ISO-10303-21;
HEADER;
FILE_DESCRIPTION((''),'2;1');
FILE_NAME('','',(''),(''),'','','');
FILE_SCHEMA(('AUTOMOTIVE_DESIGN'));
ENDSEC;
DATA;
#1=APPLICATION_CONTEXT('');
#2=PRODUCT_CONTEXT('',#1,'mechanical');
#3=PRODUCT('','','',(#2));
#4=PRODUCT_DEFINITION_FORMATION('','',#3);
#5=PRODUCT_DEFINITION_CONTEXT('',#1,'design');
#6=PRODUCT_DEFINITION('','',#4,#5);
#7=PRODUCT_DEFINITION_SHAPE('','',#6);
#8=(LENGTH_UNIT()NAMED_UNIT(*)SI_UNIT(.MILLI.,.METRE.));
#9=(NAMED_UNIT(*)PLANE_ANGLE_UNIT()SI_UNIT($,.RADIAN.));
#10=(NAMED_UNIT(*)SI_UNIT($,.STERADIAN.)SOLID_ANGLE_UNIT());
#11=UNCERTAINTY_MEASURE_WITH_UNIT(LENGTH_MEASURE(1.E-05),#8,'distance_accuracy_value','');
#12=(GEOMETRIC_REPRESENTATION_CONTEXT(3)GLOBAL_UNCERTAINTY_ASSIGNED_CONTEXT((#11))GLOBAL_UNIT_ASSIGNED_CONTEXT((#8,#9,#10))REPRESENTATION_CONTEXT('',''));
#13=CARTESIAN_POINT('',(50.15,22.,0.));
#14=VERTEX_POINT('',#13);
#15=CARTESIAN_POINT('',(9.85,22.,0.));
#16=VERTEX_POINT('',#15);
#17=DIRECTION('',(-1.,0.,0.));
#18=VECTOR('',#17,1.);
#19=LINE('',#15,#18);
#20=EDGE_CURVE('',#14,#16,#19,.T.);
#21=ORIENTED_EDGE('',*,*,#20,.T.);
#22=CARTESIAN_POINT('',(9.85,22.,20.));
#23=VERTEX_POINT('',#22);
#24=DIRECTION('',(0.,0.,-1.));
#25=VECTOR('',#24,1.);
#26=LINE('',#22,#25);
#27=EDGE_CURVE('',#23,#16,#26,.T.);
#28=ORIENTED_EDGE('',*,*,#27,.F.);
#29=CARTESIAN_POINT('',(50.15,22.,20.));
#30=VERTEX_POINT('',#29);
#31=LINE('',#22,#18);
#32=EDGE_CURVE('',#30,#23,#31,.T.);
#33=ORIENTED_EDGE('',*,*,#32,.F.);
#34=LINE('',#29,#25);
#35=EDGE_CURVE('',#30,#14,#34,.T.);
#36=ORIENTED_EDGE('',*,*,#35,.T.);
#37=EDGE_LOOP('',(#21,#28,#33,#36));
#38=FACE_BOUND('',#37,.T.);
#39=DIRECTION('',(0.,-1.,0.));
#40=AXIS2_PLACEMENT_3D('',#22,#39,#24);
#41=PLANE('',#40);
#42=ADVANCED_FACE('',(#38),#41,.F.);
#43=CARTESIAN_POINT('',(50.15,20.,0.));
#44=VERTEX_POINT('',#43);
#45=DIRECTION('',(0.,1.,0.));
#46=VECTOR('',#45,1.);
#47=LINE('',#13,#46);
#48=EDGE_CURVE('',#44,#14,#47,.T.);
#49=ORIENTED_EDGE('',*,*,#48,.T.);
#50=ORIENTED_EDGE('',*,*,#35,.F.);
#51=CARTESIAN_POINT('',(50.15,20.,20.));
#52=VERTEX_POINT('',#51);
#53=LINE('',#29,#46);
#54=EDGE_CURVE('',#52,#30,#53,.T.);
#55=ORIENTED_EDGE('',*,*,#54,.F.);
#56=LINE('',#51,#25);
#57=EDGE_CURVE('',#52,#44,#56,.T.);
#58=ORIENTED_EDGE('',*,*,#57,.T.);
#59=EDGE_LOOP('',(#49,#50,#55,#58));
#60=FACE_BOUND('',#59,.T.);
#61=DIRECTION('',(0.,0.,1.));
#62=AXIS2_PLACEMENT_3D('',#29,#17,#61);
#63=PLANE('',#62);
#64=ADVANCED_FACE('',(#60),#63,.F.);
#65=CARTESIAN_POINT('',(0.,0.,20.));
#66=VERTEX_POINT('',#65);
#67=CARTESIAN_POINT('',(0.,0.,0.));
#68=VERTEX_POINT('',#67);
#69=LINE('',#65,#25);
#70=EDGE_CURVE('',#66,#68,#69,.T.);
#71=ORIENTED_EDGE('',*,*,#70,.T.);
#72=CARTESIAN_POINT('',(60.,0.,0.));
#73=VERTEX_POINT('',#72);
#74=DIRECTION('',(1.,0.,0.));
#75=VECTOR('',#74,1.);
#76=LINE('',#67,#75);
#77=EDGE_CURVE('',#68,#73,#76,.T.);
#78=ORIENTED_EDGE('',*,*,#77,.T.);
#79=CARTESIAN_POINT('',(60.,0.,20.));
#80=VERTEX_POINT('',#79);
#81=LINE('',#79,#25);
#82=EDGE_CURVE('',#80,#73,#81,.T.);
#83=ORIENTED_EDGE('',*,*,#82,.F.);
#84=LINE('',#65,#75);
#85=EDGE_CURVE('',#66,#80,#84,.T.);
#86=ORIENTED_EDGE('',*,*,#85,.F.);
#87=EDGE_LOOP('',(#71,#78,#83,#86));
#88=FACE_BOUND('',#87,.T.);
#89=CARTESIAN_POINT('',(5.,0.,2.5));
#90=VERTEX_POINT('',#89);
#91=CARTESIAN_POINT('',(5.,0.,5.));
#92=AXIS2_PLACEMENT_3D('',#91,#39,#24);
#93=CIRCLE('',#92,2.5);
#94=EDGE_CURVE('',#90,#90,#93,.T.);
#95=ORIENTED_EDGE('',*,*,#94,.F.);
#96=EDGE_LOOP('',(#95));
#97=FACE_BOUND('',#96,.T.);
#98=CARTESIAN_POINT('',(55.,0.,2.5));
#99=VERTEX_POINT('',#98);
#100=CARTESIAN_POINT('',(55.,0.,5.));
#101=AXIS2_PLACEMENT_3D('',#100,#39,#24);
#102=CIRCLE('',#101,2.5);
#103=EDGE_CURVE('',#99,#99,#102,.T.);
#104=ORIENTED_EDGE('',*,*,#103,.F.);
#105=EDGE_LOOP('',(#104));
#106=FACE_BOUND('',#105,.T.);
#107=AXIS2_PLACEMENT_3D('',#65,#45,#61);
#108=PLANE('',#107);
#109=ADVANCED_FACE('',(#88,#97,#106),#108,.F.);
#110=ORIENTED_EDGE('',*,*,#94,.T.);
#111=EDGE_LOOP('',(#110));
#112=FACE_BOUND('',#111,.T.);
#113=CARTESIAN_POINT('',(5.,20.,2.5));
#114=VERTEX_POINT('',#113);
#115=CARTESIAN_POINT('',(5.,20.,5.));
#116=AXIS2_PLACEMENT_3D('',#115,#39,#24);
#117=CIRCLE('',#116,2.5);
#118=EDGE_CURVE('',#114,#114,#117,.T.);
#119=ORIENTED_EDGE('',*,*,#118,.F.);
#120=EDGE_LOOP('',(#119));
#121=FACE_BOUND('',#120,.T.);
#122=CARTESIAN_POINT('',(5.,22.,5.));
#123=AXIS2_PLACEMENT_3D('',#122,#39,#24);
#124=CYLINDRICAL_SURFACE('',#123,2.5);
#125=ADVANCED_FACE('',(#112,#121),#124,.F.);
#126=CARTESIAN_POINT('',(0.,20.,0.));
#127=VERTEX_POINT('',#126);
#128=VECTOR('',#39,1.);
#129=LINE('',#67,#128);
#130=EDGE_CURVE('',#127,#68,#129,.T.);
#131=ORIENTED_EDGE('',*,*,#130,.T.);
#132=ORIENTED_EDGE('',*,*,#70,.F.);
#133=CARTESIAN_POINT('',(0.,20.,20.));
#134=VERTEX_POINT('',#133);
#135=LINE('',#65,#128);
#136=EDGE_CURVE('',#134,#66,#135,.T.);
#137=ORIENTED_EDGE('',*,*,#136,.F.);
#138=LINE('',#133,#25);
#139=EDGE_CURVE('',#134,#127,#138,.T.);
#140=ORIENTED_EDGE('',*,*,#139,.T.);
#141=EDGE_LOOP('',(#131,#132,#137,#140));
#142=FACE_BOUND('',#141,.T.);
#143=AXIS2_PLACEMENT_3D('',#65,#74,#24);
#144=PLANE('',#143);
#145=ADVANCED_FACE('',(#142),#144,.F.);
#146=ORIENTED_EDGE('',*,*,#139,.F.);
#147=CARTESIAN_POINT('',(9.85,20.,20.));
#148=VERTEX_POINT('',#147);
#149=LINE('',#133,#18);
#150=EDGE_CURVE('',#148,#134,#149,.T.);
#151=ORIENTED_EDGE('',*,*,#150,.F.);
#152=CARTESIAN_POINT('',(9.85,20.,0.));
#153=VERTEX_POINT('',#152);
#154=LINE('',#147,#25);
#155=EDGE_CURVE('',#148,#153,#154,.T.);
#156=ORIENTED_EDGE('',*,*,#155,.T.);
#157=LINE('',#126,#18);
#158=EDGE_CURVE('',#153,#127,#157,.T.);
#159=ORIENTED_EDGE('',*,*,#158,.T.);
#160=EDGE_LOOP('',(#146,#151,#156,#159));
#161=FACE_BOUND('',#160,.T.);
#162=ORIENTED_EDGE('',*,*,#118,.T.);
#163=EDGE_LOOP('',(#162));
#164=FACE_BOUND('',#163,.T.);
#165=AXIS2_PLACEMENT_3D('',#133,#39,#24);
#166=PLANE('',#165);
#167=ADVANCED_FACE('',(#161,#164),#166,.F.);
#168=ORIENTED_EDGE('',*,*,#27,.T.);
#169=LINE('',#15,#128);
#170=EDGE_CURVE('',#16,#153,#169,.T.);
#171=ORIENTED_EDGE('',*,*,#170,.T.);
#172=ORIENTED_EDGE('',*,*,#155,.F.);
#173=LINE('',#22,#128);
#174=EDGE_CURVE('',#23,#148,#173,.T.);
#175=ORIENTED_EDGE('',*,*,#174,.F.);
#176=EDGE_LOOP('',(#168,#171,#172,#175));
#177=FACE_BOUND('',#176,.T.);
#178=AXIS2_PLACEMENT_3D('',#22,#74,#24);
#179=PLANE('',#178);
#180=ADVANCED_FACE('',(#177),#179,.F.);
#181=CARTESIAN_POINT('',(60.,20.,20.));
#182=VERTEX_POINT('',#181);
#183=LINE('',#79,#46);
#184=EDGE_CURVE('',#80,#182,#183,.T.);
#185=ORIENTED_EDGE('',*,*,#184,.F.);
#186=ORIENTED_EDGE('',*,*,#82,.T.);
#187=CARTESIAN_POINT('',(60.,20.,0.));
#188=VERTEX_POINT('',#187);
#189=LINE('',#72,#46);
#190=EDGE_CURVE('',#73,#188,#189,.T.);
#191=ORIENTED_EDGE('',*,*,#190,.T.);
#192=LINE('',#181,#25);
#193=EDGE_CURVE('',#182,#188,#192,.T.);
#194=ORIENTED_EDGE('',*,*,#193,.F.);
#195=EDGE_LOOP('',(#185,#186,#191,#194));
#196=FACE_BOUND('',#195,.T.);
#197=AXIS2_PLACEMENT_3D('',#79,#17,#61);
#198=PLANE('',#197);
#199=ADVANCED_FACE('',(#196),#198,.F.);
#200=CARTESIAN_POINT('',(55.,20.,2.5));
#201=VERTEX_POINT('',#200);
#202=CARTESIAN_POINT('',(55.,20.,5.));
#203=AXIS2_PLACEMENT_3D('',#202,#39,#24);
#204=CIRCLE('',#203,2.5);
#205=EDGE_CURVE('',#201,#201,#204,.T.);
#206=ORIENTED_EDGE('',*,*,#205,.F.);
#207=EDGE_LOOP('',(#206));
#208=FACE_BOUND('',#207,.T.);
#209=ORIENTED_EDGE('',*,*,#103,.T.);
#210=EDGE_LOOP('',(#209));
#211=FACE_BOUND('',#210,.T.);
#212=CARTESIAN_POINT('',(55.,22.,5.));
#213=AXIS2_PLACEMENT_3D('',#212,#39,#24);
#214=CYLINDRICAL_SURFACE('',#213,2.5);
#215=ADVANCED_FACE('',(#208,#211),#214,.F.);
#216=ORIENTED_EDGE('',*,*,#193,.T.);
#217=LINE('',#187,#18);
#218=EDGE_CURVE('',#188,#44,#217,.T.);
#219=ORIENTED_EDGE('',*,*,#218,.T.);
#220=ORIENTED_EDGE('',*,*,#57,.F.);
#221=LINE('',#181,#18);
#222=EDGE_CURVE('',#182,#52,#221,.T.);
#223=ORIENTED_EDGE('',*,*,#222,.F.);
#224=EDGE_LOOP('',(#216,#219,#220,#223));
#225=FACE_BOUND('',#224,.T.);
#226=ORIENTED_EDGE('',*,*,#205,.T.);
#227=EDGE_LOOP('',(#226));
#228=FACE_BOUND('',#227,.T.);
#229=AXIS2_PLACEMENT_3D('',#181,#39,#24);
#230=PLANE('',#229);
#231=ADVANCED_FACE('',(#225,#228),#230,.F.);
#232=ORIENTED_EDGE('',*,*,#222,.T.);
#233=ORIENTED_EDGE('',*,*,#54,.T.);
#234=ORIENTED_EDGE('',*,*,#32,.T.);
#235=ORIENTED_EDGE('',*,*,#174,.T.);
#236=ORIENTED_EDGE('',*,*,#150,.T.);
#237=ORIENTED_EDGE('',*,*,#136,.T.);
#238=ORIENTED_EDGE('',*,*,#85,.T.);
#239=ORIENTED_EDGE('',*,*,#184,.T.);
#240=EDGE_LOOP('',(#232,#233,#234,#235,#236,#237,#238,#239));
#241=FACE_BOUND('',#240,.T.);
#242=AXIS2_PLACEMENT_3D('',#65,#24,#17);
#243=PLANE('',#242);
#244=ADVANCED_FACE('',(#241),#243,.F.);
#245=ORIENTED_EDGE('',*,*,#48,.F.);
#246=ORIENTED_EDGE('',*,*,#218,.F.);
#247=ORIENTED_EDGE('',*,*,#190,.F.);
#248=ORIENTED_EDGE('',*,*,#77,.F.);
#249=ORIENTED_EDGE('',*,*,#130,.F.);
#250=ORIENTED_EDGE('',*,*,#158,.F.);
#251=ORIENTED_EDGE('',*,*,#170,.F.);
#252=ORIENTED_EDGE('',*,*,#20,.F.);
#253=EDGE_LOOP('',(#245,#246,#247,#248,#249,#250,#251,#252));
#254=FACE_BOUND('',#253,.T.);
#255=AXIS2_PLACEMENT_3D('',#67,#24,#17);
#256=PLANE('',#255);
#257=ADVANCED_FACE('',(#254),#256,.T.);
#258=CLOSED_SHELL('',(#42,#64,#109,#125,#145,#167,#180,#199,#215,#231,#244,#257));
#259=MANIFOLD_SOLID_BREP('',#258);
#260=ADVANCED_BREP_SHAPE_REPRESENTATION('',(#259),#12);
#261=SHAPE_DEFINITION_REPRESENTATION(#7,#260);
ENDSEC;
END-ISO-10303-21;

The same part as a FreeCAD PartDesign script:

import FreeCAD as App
import Part
import Sketcher

V = App.Vector
Q = App.Units.Quantity

doc = App.newDocument("Part")
body = doc.addObject("PartDesign::Body", "Body")

# Sketch on XY plane
sketch1 = doc.addObject("Sketcher::SketchObject", "Sketch")
body.addObject(sketch1)
sketch1.AttachmentSupport = (doc.XY_Plane, [""])
sketch1.MapMode = "FlatFace"
sketch1.addGeometry(Part.LineSegment(V(0, 0, 0), V(60, 0, 0)), False)
sketch1.addGeometry(Part.LineSegment(V(60, 0, 0), V(60, 20, 0)), False)
sketch1.addGeometry(Part.LineSegment(V(60, 20, 0), V(50.15, 20, 0)), False)
sketch1.addGeometry(Part.LineSegment(V(50.15, 20, 0), V(50.15, 22, 0)), False)
sketch1.addGeometry(Part.LineSegment(V(50.15, 22, 0), V(9.85, 22, 0)), False)
sketch1.addGeometry(Part.LineSegment(V(9.85, 22, 0), V(9.85, 20, 0)), False)
sketch1.addGeometry(Part.LineSegment(V(9.85, 20, 0), V(0, 20, 0)), False)
sketch1.addGeometry(Part.LineSegment(V(0, 20, 0), V(0, 0, 0)), False)
sketch1.addConstraint(Sketcher.Constraint("Coincident", 0, 2, 1, 1))
sketch1.addConstraint(Sketcher.Constraint("Coincident", 1, 2, 2, 1))
sketch1.addConstraint(Sketcher.Constraint("Coincident", 2, 2, 3, 1))
sketch1.addConstraint(Sketcher.Constraint("Coincident", 3, 2, 4, 1))
sketch1.addConstraint(Sketcher.Constraint("Coincident", 4, 2, 5, 1))
sketch1.addConstraint(Sketcher.Constraint("Coincident", 5, 2, 6, 1))
sketch1.addConstraint(Sketcher.Constraint("Coincident", 6, 2, 7, 1))
sketch1.addConstraint(Sketcher.Constraint("Coincident", 7, 2, 0, 1))
sketch1.addConstraint(Sketcher.Constraint("Horizontal", 0))
sketch1.addConstraint(Sketcher.Constraint("Vertical", 1))
sketch1.addConstraint(Sketcher.Constraint("Horizontal", 2))
sketch1.addConstraint(Sketcher.Constraint("Vertical", 3))
sketch1.addConstraint(Sketcher.Constraint("Horizontal", 4))
sketch1.addConstraint(Sketcher.Constraint("Vertical", 5))
sketch1.addConstraint(Sketcher.Constraint("Horizontal", 6))
sketch1.addConstraint(Sketcher.Constraint("Vertical", 7))
sketch1.addConstraint(Sketcher.Constraint("Coincident", 7, 2, -1, 1))
sketch1.addConstraint(Sketcher.Constraint("Horizontal", 2, 2, 5, 2))
sketch1.addConstraint(Sketcher.Constraint("Equal", 2, 6))
sketch1.addConstraint(Sketcher.Constraint("DistanceX", 0, 1, 0, 2, Q("60 mm")))
sketch1.addConstraint(Sketcher.Constraint("DistanceY", 1, 1, 1, 2, Q("20 mm")))
sketch1.addConstraint(Sketcher.Constraint("DistanceY", 3, 1, 3, 2, Q("2 mm")))
sketch1.addConstraint(Sketcher.Constraint("DistanceX", 4, 2, 4, 1, Q("40.3 mm")))
pad1 = doc.addObject("PartDesign::Pad", "Pad")
body.addObject(pad1)
pad1.Profile = sketch1
pad1.Length = 20

# Sketch on XZ plane
sketch2 = doc.addObject("Sketcher::SketchObject", "Sketch001")
body.addObject(sketch2)
sketch2.AttachmentSupport = (doc.XZ_Plane, [""])
sketch2.MapMode = "FlatFace"
sketch2.addGeometry(Part.Circle(V(55, 5, 0), V(0, 0, 1), 2.5), False)
sketch2.addGeometry(Part.Circle(V(5, 5, 0), V(0, 0, 1), 2.5), False)
sketch2.addConstraint(Sketcher.Constraint("Equal", 0, 1))
sketch2.addConstraint(Sketcher.Constraint("Horizontal", 0, 3, 1, 3))
sketch2.addConstraint(Sketcher.Constraint("Diameter", 0, Q("5 mm")))
sketch2.addConstraint(Sketcher.Constraint("DistanceX", -1, 1, 0, 3, Q("55 mm")))
sketch2.addConstraint(Sketcher.Constraint("DistanceY", -1, 1, 0, 3, Q("5 mm")))
sketch2.addConstraint(Sketcher.Constraint("DistanceX", -1, 1, 1, 3, Q("5 mm")))
pocket1 = doc.addObject("PartDesign::Pocket", "Pocket")
body.addObject(pocket1)
pocket1.Profile = sketch2
pocket1.Type = "ThroughAll"

doc.recompute()
